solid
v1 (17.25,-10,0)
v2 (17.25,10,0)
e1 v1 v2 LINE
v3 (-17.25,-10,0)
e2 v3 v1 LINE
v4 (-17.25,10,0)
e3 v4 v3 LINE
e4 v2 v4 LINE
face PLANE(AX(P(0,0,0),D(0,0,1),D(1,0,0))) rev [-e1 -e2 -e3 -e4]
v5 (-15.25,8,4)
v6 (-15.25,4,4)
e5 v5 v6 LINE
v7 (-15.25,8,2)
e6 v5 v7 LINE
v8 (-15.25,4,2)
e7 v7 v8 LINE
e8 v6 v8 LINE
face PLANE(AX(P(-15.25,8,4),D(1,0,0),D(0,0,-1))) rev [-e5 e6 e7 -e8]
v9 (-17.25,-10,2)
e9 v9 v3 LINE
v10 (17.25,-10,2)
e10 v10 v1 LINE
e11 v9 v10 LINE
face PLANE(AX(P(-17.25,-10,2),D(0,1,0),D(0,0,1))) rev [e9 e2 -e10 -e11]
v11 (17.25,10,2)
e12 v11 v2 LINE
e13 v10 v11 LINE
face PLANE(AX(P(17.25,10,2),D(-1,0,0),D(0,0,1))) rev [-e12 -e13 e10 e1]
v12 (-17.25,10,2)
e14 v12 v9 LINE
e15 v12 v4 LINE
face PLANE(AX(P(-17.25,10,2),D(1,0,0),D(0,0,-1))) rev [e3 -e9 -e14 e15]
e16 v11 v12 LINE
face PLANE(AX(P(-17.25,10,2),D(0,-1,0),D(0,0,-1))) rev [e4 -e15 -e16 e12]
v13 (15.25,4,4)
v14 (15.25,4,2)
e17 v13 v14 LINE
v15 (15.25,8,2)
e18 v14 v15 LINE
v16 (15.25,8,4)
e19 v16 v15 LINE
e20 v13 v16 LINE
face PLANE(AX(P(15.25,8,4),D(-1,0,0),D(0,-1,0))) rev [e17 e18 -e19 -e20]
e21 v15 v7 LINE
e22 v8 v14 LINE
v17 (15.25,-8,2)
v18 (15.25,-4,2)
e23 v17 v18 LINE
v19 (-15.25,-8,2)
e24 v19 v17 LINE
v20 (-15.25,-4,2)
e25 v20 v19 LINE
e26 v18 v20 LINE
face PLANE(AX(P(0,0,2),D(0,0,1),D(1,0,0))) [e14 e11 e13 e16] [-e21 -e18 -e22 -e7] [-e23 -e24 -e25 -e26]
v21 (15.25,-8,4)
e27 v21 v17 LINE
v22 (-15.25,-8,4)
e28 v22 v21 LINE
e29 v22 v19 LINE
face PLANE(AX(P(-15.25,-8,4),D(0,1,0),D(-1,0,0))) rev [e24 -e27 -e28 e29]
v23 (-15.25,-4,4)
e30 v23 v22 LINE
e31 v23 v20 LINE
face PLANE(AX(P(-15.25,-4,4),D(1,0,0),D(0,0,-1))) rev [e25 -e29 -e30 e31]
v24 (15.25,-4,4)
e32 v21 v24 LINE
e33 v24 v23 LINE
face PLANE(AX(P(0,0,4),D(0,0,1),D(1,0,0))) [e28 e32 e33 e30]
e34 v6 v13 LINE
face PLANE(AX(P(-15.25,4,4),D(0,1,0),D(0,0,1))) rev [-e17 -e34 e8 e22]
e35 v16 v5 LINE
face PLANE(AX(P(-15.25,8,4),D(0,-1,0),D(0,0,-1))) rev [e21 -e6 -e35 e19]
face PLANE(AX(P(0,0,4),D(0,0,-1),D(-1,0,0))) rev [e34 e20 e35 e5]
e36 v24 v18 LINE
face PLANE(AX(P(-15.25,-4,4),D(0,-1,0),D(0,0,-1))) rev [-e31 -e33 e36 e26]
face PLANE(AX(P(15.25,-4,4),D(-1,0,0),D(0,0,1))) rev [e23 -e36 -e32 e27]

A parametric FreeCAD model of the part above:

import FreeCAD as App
import Part
import Sketcher
from FreeCAD import Vector

doc = App.newDocument("Part")
params = doc.addObject("Spreadsheet::Sheet", "Params")
for row, (alias, value) in enumerate([
    ("sketch1_height", "20 mm"),
    ("sketch1_width", "34.5 mm"),
    ("pad1_length", "2 mm"),
    ("sketch2_height", "4 mm"),
    ("sketch2_width", "30.5 mm"),
    ("pad2_length", "2 mm"),
], start=1):
    params.set(f"A{row}", alias)
    params.set(f"B{row}", "=" + value)
    params.setAlias(f"B{row}", alias)

body = doc.addObject("PartDesign::Body", "Body")

# Sketch on XY plane
sketch1 = body.newObject("Sketcher::SketchObject", "Sketch")
sketch1.AttachmentSupport = (doc.getObject("XY_Plane"), [""])
sketch1.MapMode = "FlatFace"
sketch1.addGeometry(Part.LineSegment(Vector(-17, 10, 0), Vector(-17, -10, 0)), False)
sketch1.addGeometry(Part.LineSegment(Vector(-17, -10, 0), Vector(17, -10, 0)), False)
sketch1.addGeometry(Part.LineSegment(Vector(17, -10, 0), Vector(17, 10, 0)), False)
sketch1.addGeometry(Part.LineSegment(Vector(17, 10, 0), Vector(-17, 10, 0)), False)
sketch1.addConstraint(Sketcher.Constraint("Coincident", 0, 2, 1, 1))
sketch1.addConstraint(Sketcher.Constraint("Coincident", 1, 2, 2, 1))
sketch1.addConstraint(Sketcher.Constraint("Coincident", 2, 2, 3, 1))
sketch1.addConstraint(Sketcher.Constraint("Coincident", 3, 2, 0, 1))
sketch1.addConstraint(Sketcher.Constraint("Vertical", 0))
sketch1.addConstraint(Sketcher.Constraint("Horizontal", 1))
sketch1.addConstraint(Sketcher.Constraint("Vertical", 2))
sketch1.addConstraint(Sketcher.Constraint("Horizontal", 3))
sketch1.addConstraint(Sketcher.Constraint("Symmetric", 0, 2, 2, 2, -1, 1))
sketch1.addConstraint(Sketcher.Constraint("DistanceY", 0, 2, 0, 1, 20.0))
sketch1.addConstraint(Sketcher.Constraint("DistanceX", 1, 1, 1, 2, 34.5))
sketch1.setExpression("Constraints[9]", "Params.sketch1_height")
sketch1.setExpression("Constraints[10]", "Params.sketch1_width")
pad1 = body.newObject("PartDesign::Pad", "Pad")
pad1.Profile = sketch1
pad1.setExpression("Length", "Params.pad1_length")

# Sketch on XY plane
sketch2 = body.newObject("Sketcher::SketchObject", "Sketch001")
sketch2.AttachmentSupport = (doc.getObject("XY_Plane"), [""])
sketch2.MapMode = "FlatFace"
sketch2.AttachmentOffset = App.Placement(Vector(0, 0, 2), App.Rotation())
sketch2.addGeometry(Part.LineSegment(Vector(-15.2, 8, 0), Vector(-15.2, 4, 0)), False)
sketch2.addGeometry(Part.LineSegment(Vector(-15.2, 4, 0), Vector(15.2, 4, 0)), False)
sketch2.addGeometry(Part.LineSegment(Vector(15.2, 4, 0), Vector(15.2, 8, 0)), False)
sketch2.addGeometry(Part.LineSegment(Vector(15.2, 8, 0), Vector(-15.2, 8, 0)), False)
sketch2.addGeometry(Part.LineSegment(Vector(-15.2, -4, 0), Vector(-15.2, -8, 0)), False)
sketch2.addGeometry(Part.LineSegment(Vector(-15.2, -8, 0), Vector(15.2, -8, 0)), False)
sketch2.addGeometry(Part.LineSegment(Vector(15.2, -8, 0), Vector(15.2, -4, 0)), False)
sketch2.addGeometry(Part.LineSegment(Vector(15.2, -4, 0), Vector(-15.2, -4, 0)), False)
sketch2.addConstraint(Sketcher.Constraint("Coincident", 0, 2, 1, 1))
sketch2.addConstraint(Sketcher.Constraint("Coincident", 1, 2, 2, 1))
sketch2.addConstraint(Sketcher.Constraint("Coincident", 2, 2, 3, 1))
sketch2.addConstraint(Sketcher.Constraint("Coincident", 3, 2, 0, 1))
sketch2.addConstraint(Sketcher.Constraint("Coincident", 4, 2, 5, 1))
sketch2.addConstraint(Sketcher.Constraint("Coincident", 5, 2, 6, 1))
sketch2.addConstraint(Sketcher.Constraint("Coincident", 6, 2, 7, 1))
sketch2.addConstraint(Sketcher.Constraint("Coincident", 7, 2, 4, 1))
sketch2.addConstraint(Sketcher.Constraint("Vertical", 0))
sketch2.addConstraint(Sketcher.Constraint("Horizontal", 1))
sketch2.addConstraint(Sketcher.Constraint("Vertical", 2))
sketch2.addConstraint(Sketcher.Constraint("Horizontal", 3))
sketch2.addConstraint(Sketcher.Constraint("Vertical", 4))
sketch2.addConstraint(Sketcher.Constraint("Horizontal", 5))
sketch2.addConstraint(Sketcher.Constraint("Vertical", 6))
sketch2.addConstraint(Sketcher.Constraint("Horizontal", 7))
sketch2.addConstraint(Sketcher.Constraint("Symmetric", 2, 2, 4, 2, -1, 1))
sketch2.addConstraint(Sketcher.Constraint("Symmetric", 0, 2, 6, 2, -1, 1))
sketch2.addConstraint(Sketcher.Constraint("Vertical", 3, 2, 4, 2))
sketch2.addConstraint(Sketcher.Constraint("DistanceY", 0, 2, 0, 1, 4.0))
sketch2.addConstraint(Sketcher.Constraint("DistanceX", 1, 1, 1, 2, 30.5))
sketch2.addConstraint(Sketcher.Constraint("DistanceY", -1, 1, 0, 2, 4.0))
sketch2.setExpression("Constraints[19]", "Params.sketch2_height")
sketch2.setExpression("Constraints[20]", "Params.sketch2_width")
pad2 = body.newObject("PartDesign::Pad", "Pad001")
pad2.Profile = sketch2
pad2.setExpression("Length", "Params.pad2_length")

doc.recompute()
